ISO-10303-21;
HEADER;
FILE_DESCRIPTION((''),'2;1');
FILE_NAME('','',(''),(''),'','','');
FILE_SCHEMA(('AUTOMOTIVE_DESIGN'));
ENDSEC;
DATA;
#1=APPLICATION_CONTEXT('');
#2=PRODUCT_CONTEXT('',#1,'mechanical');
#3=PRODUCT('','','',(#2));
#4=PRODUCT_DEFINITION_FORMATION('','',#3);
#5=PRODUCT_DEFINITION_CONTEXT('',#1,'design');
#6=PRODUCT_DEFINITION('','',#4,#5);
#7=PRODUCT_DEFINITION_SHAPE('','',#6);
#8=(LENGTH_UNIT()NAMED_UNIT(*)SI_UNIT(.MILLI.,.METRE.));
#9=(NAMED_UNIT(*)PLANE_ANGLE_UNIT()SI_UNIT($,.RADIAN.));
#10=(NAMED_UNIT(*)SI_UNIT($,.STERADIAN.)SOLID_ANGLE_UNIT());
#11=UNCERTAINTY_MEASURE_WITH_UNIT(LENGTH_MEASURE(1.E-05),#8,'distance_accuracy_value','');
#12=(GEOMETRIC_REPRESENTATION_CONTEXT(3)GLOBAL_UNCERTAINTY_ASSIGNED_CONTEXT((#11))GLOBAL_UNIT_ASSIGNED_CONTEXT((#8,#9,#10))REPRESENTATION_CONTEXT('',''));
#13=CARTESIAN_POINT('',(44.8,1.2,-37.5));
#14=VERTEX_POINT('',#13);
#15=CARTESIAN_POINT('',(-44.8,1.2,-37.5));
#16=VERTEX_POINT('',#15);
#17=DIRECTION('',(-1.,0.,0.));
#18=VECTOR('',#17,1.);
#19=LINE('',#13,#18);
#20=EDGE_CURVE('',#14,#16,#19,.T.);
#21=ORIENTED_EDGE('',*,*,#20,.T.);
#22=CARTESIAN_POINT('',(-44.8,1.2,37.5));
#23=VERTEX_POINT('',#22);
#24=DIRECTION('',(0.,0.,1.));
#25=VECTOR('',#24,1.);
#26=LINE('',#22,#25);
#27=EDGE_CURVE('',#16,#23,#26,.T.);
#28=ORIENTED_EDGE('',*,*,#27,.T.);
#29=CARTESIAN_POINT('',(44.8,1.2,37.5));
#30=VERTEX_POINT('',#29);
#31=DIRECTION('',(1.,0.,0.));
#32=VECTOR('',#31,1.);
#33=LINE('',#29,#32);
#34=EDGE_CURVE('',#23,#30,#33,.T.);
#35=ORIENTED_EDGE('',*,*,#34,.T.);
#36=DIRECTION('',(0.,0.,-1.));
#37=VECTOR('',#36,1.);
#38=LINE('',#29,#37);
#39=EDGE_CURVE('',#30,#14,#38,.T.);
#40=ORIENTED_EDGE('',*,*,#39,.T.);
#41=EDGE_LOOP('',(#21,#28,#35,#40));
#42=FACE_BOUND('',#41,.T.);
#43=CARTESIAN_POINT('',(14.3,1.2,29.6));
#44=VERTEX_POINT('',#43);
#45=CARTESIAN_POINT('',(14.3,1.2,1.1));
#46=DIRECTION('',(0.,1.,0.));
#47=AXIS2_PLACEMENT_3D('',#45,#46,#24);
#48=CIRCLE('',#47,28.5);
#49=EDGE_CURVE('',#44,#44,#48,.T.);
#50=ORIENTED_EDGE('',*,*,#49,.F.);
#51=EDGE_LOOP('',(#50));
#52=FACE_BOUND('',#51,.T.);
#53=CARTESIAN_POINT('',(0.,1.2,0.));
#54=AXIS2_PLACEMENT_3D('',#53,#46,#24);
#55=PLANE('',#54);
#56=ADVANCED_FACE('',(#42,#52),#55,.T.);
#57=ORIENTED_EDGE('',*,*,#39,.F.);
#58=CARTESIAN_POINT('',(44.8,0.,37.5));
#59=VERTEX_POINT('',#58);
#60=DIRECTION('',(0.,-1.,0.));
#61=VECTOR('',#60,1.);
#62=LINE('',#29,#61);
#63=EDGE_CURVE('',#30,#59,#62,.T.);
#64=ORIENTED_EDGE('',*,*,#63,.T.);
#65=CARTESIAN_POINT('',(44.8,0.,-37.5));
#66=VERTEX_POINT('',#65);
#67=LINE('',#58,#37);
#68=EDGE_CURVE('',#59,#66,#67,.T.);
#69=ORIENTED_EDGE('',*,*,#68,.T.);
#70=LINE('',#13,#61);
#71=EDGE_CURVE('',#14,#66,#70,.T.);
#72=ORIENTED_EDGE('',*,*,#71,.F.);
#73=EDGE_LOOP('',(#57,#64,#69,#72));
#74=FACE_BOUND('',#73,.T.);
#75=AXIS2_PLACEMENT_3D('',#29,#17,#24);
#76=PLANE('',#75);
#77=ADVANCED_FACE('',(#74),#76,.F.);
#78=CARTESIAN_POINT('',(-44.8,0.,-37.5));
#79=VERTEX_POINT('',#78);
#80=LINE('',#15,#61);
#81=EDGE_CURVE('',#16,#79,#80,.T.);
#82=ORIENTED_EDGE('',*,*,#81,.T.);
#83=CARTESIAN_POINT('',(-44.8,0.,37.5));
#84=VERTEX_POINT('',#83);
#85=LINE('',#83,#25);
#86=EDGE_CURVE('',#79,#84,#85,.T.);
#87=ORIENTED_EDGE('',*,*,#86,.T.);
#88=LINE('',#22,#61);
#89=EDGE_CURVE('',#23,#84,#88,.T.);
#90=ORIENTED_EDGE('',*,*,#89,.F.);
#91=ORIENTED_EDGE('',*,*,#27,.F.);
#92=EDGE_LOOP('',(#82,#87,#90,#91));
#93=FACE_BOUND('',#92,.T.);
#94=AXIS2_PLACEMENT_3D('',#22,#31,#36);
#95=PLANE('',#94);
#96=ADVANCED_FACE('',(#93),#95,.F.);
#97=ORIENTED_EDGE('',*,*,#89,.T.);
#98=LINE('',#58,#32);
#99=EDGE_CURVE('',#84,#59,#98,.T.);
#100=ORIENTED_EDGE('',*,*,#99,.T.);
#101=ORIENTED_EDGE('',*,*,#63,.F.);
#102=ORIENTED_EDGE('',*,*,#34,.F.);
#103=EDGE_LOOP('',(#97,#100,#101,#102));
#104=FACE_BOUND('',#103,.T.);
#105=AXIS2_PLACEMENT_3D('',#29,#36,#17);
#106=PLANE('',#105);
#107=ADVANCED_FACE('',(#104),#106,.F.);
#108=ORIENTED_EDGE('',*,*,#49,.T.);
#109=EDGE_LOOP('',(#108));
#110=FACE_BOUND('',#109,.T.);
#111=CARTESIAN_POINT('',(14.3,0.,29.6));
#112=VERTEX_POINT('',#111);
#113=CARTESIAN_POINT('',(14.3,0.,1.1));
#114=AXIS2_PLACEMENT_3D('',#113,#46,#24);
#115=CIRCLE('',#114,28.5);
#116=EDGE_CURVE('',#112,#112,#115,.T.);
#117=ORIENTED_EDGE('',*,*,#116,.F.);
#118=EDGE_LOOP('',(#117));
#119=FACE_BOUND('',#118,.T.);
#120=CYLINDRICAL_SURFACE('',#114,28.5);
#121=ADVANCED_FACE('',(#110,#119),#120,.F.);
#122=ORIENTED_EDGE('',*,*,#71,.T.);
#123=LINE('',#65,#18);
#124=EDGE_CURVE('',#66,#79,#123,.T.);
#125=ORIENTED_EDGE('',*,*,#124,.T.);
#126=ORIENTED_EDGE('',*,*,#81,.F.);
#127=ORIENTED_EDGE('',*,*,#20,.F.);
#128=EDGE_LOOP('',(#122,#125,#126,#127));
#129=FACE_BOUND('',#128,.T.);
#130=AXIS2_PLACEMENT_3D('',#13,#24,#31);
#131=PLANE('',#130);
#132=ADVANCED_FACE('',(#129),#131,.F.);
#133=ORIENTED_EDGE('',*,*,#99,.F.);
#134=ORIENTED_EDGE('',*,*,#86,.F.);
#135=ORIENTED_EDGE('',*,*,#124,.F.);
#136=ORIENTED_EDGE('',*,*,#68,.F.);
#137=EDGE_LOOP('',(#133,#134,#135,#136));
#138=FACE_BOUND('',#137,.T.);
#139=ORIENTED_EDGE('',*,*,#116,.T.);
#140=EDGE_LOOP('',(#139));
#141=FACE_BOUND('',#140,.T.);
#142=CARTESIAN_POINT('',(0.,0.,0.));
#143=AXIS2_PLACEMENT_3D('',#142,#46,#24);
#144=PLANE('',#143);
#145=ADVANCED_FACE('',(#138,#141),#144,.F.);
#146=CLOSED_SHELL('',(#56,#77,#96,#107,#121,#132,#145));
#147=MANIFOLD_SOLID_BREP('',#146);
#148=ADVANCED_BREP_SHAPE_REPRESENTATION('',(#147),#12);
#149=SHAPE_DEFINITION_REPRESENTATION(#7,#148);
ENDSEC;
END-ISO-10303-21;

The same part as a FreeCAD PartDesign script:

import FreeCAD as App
import Part
import Sketcher
from FreeCAD import Vector
Q = App.Units.Quantity

doc = App.newDocument("Part")
body = doc.addObject("PartDesign::Body", "Body")

# Sketch on XZ plane
sketch1 = body.newObject("Sketcher::SketchObject", "Sketch")
sketch1.AttachmentSupport = (doc.getObject("XZ_Plane"), [""])
sketch1.MapMode = "FlatFace"
sketch1.addGeometry(Part.LineSegment(Vector(-44.8, -37.5, 0), Vector(-44.8, 37.5, 0)), False)
sketch1.addGeometry(Part.LineSegment(Vector(-44.8, 37.5, 0), Vector(44.8, 37.5, 0)), False)
sketch1.addGeometry(Part.LineSegment(Vector(44.8, 37.5, 0), Vector(44.8, -37.5, 0)), False)
sketch1.addGeometry(Part.LineSegment(Vector(44.8, -37.5, 0), Vector(-44.8, -37.5, 0)), False)
sketch1.addConstraint(Sketcher.Constraint("Coincident", 0, 2, 1, 1))
sketch1.addConstraint(Sketcher.Constraint("Coincident", 1, 2, 2, 1))
sketch1.addConstraint(Sketcher.Constraint("Coincident", 2, 2, 3, 1))
sketch1.addConstraint(Sketcher.Constraint("Coincident", 3, 2, 0, 1))
sketch1.addConstraint(Sketcher.Constraint("Vertical", 0))
sketch1.addConstraint(Sketcher.Constraint("Horizontal", 1))
sketch1.addConstraint(Sketcher.Constraint("Vertical", 2))
sketch1.addConstraint(Sketcher.Constraint("Horizontal", 3))
sketch1.addConstraint(Sketcher.Constraint("Symmetric", 0, 2, 2, 2, -1, 1))
sketch1.addConstraint(Sketcher.Constraint("DistanceY", 0, 1, 0, 2, Q("75 mm")))
sketch1.addConstraint(Sketcher.Constraint("DistanceX", 1, 1, 1, 2, Q("89.6 mm")))
pad1 = body.newObject("PartDesign::Pad", "Pad")
pad1.Profile = sketch1
pad1.Length = 1.2
pad1.Reversed = True

# Sketch on XZ plane
sketch2 = body.newObject("Sketcher::SketchObject", "Sketch001")
sketch2.AttachmentSupport = (doc.getObject("XZ_Plane"), [""])
sketch2.MapMode = "FlatFace"
sketch2.AttachmentOffset = App.Placement(Vector(0, 0, -1.2), App.Rotation())
sketch2.addGeometry(Part.Circle(Vector(14.3, 1.1, 0), Vector(0, 0, 1), 28.5), False)
sketch2.addConstraint(Sketcher.Constraint("Diameter", 0, Q("57 mm")))
sketch2.addConstraint(Sketcher.Constraint("DistanceX", -1, 1, 0, 3, Q("14.3 mm")))
sketch2.addConstraint(Sketcher.Constraint("DistanceY", -1, 1, 0, 3, Q("1.1 mm")))
pocket1 = body.newObject("PartDesign::Pocket", "Pocket")
pocket1.Profile = sketch2
pocket1.Type = "ThroughAll"
pocket1.Midplane = True

doc.recompute()
